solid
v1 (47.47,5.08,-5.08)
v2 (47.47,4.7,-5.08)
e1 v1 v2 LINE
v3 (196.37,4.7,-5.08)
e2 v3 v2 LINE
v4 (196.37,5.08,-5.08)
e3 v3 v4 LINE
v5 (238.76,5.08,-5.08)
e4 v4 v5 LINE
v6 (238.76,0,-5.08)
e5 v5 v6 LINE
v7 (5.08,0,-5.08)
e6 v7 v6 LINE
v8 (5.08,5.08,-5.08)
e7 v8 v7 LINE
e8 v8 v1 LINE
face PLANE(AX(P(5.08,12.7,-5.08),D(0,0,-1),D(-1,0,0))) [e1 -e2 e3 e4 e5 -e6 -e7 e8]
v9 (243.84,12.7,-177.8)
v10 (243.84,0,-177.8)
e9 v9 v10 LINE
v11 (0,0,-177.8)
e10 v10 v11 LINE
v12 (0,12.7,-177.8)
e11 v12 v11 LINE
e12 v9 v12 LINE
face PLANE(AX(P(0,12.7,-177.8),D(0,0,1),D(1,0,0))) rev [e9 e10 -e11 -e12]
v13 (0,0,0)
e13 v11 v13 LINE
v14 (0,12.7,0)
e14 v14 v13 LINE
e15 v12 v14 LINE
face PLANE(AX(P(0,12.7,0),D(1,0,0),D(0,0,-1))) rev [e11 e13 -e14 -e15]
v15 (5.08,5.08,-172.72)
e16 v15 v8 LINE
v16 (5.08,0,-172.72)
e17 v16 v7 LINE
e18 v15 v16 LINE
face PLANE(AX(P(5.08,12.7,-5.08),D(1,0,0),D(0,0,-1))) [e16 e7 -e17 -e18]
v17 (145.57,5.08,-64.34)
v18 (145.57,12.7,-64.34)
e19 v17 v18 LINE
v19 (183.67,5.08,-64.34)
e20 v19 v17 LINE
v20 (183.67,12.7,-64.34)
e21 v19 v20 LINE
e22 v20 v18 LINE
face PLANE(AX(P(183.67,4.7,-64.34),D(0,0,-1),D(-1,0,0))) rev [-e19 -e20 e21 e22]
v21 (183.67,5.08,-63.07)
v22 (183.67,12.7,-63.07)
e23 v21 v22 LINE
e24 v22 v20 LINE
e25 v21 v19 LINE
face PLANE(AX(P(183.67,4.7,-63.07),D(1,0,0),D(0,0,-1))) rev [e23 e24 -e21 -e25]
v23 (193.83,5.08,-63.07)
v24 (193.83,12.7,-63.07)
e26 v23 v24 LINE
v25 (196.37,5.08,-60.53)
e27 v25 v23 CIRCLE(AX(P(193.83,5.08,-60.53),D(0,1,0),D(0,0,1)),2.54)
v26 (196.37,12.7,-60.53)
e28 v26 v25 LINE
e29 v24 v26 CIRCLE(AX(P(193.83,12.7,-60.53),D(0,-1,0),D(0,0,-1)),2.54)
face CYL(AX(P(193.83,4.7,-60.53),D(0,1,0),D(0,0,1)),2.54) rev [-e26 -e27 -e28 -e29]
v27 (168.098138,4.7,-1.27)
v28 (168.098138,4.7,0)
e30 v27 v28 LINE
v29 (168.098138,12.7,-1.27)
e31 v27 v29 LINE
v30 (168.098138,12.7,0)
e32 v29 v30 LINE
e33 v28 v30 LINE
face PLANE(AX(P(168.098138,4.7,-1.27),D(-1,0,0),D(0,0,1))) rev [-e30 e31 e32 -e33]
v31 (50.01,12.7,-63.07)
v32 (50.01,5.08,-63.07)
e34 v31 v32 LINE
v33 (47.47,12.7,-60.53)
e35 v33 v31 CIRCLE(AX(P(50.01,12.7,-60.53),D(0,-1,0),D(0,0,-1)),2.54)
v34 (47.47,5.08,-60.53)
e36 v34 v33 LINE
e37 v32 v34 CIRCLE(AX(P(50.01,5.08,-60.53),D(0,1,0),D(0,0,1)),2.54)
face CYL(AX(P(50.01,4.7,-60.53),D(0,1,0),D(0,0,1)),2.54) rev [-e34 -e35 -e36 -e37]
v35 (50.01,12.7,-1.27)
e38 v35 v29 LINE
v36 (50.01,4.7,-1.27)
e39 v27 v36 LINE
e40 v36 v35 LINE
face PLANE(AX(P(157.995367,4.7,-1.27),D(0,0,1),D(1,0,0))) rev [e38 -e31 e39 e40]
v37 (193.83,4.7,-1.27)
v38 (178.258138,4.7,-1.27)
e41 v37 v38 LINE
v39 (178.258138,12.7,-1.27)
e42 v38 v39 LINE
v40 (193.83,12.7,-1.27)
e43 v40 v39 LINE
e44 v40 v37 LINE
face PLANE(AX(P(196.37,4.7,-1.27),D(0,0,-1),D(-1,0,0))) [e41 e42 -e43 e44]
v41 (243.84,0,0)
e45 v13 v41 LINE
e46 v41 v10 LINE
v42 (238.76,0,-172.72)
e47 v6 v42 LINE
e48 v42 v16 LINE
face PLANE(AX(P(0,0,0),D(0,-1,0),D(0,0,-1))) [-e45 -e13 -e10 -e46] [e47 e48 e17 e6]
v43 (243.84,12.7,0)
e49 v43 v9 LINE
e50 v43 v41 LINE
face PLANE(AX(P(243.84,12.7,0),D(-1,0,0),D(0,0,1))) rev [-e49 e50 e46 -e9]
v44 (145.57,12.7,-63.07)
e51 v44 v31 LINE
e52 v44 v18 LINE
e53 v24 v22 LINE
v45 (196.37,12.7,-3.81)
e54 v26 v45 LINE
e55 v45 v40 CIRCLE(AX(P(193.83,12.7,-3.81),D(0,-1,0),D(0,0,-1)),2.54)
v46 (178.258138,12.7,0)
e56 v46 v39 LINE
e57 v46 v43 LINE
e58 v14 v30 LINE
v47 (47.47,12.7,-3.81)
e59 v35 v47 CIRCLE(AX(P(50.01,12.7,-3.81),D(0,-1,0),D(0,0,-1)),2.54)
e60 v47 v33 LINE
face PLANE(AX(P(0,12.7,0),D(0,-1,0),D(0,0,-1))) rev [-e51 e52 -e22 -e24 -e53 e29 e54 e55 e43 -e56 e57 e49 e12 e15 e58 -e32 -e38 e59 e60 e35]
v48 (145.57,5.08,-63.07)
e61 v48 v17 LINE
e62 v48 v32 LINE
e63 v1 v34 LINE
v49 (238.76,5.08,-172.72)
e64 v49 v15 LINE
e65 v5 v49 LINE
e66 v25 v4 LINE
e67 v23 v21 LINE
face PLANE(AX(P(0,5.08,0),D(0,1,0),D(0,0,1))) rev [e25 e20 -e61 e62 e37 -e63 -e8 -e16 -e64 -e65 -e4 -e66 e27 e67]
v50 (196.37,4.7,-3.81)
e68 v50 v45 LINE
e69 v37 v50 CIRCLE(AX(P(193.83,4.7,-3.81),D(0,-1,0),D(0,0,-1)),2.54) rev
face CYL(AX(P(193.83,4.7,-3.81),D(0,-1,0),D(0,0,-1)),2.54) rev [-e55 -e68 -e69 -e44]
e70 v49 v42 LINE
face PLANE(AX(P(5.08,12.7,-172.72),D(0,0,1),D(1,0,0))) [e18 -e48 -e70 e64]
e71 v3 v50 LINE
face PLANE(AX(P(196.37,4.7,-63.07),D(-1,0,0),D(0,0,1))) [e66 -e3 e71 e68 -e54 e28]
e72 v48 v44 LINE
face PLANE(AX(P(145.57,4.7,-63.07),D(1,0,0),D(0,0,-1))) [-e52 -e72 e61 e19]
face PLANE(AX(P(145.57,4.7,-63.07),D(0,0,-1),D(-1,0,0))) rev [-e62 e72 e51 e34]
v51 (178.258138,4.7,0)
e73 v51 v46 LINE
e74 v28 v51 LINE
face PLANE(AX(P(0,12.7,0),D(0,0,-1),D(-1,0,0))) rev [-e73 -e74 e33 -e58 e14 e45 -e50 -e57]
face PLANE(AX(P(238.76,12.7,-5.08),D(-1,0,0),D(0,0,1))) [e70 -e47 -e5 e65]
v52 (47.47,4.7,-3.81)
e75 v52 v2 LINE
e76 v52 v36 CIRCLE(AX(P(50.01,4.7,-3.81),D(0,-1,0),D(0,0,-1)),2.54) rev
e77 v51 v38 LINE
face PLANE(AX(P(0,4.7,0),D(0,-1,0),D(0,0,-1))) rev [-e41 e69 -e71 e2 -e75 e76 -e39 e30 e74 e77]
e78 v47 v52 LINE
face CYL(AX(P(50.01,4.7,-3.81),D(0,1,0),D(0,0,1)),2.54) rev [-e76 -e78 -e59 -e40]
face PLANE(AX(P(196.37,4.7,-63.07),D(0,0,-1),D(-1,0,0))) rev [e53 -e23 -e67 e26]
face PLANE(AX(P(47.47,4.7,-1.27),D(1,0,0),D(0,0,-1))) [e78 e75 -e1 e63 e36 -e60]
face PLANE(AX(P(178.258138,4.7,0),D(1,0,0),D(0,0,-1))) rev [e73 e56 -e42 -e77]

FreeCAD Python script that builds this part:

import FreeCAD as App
import Part
import Sketcher
from FreeCAD import Vector
Q = App.Units.Quantity


def edges_at(feature, points):
    """Names of the edges that pass closest to the given points."""
    edges = feature.Shape.Edges
    near = lambda p: min(range(len(edges)), key=lambda i: edges[i].distToShape(Part.Vertex(*p))[0])
    return sorted({f"Edge{near(p) + 1}" for p in points})

doc = App.newDocument("Part")
body = doc.addObject("PartDesign::Body", "Body")

# Sketch on XZ plane
sketch1 = doc.addObject("Sketcher::SketchObject", "Sketch")
body.addObject(sketch1)
sketch1.AttachmentSupport = (doc.XZ_Plane, [""])
sketch1.MapMode = "FlatFace"
sketch1.addGeometry(Part.LineSegment(Vector(0, -178, 0), Vector(0, 0, 0)), False)
sketch1.addGeometry(Part.LineSegment(Vector(0, 0, 0), Vector(244, 0, 0)), False)
sketch1.addGeometry(Part.LineSegment(Vector(244, 0, 0), Vector(244, -178, 0)), False)
sketch1.addGeometry(Part.LineSegment(Vector(244, -178, 0), Vector(0, -178, 0)), False)
sketch1.addGeometry(Part.LineSegment(Vector(239, -5, 0), Vector(5, -5, 0)), False)
sketch1.addGeometry(Part.LineSegment(Vector(5, -5, 0), Vector(5, -173, 0)), False)
sketch1.addGeometry(Part.LineSegment(Vector(5, -173, 0), Vector(239, -173, 0)), False)
sketch1.addGeometry(Part.LineSegment(Vector(239, -173, 0), Vector(239, -5, 0)), False)
sketch1.addConstraint(Sketcher.Constraint("Coincident", 0, 2, 1, 1))
sketch1.addConstraint(Sketcher.Constraint("Coincident", 1, 2, 2, 1))
sketch1.addConstraint(Sketcher.Constraint("Coincident", 2, 2, 3, 1))
sketch1.addConstraint(Sketcher.Constraint("Coincident", 3, 2, 0, 1))
sketch1.addConstraint(Sketcher.Constraint("Coincident", 4, 2, 5, 1))
sketch1.addConstraint(Sketcher.Constraint("Coincident", 5, 2, 6, 1))
sketch1.addConstraint(Sketcher.Constraint("Coincident", 6, 2, 7, 1))
sketch1.addConstraint(Sketcher.Constraint("Coincident", 7, 2, 4, 1))
sketch1.addConstraint(Sketcher.Constraint("Vertical", 0))
sketch1.addConstraint(Sketcher.Constraint("Horizontal", 1))
sketch1.addConstraint(Sketcher.Constraint("Vertical", 2))
sketch1.addConstraint(Sketcher.Constraint("Horizontal", 3))
sketch1.addConstraint(Sketcher.Constraint("Horizontal", 4))
sketch1.addConstraint(Sketcher.Constraint("Vertical", 5))
sketch1.addConstraint(Sketcher.Constraint("Horizontal", 6))
sketch1.addConstraint(Sketcher.Constraint("Vertical", 7))
sketch1.addConstraint(Sketcher.Constraint("Coincident", 0, 2, -1, 1))
sketch1.addConstraint(Sketcher.Constraint("DistanceY", 0, 1, 0, 2, Q("7 in")))
sketch1.addConstraint(Sketcher.Constraint("DistanceX", 1, 1, 1, 2, Q("9.6 in")))
sketch1.addConstraint(Sketcher.Constraint("DistanceX", 4, 2, 4, 1, Q("9.2 in")))
sketch1.addConstraint(Sketcher.Constraint("DistanceY", 5, 2, 5, 1, Q("6.6 in")))
sketch1.addConstraint(Sketcher.Constraint("DistanceX", -1, 1, 4, 2, Q("0.2 in")))
sketch1.addConstraint(Sketcher.Constraint("DistanceY", 4, 2, -1, 1, Q("0.2 in")))
pad1 = doc.addObject("PartDesign::Pad", "Pad")
body.addObject(pad1)
pad1.Profile = sketch1
pad1.Length = Q("0.5 in")
pad1.Reversed = True

# Sketch on XZ plane
sketch2 = doc.addObject("Sketcher::SketchObject", "Sketch001")
body.addObject(sketch2)
sketch2.AttachmentSupport = (doc.XZ_Plane, [""])
sketch2.MapMode = "FlatFace"
sketch2.AttachmentOffset = App.Placement(Vector(0, 0, -0.5 * 25.4), App.Rotation())
sketch2.addGeometry(Part.LineSegment(Vector(5, -173, 0), Vector(5, -5, 0)), False)
sketch2.addGeometry(Part.LineSegment(Vector(5, -5, 0), Vector(239, -5, 0)), False)
sketch2.addGeometry(Part.LineSegment(Vector(239, -5, 0), Vector(239, -173, 0)), False)
sketch2.addGeometry(Part.LineSegment(Vector(239, -173, 0), Vector(5, -173, 0)), False)
sketch2.addConstraint(Sketcher.Constraint("Coincident", 0, 2, 1, 1))
sketch2.addConstraint(Sketcher.Constraint("Coincident", 1, 2, 2, 1))
sketch2.addConstraint(Sketcher.Constraint("Coincident", 2, 2, 3, 1))
sketch2.addConstraint(Sketcher.Constraint("Coincident", 3, 2, 0, 1))
sketch2.addConstraint(Sketcher.Constraint("Vertical", 0))
sketch2.addConstraint(Sketcher.Constraint("Horizontal", 1))
sketch2.addConstraint(Sketcher.Constraint("Vertical", 2))
sketch2.addConstraint(Sketcher.Constraint("Horizontal", 3))
sketch2.addConstraint(Sketcher.Constraint("DistanceX", 1, 1, 1, 2, Q("9.2 in")))
sketch2.addConstraint(Sketcher.Constraint("DistanceY", 0, 1, 0, 2, Q("6.6 in")))
sketch2.addConstraint(Sketcher.Constraint("DistanceX", -1, 1, 0, 2, Q("0.2 in")))
sketch2.addConstraint(Sketcher.Constraint("DistanceY", 0, 2, -1, 1, Q("0.2 in")))
pad2 = doc.addObject("PartDesign::Pad", "Pad001")
body.addObject(pad2)
pad2.Profile = sketch2
pad2.Length = Q("0.3 in")

# Sketch on XZ plane
sketch3 = doc.addObject("Sketcher::SketchObject", "Sketch002")
body.addObject(sketch3)
sketch3.AttachmentSupport = (doc.XZ_Plane, [""])
sketch3.MapMode = "FlatFace"
sketch3.AttachmentOffset = App.Placement(Vector(0, 0, -0.5 * 25.4), App.Rotation())
sketch3.addGeometry(Part.LineSegment(Vector(178.3, -1.3, 0), Vector(196.4, -1.3, 0)), False)
sketch3.addGeometry(Part.LineSegment(Vector(196.4, -1.3, 0), Vector(196.4, -63.1, 0)), False)
sketch3.addGeometry(Part.LineSegment(Vector(196.4, -63.1, 0), Vector(183.7, -63.1, 0)), False)
sketch3.addGeometry(Part.LineSegment(Vector(183.7, -63.1, 0), Vector(183.7, -64.3, 0)), False)
sketch3.addGeometry(Part.LineSegment(Vector(183.7, -64.3, 0), Vector(145.6, -64.3, 0)), False)
sketch3.addGeometry(Part.LineSegment(Vector(145.6, -64.3, 0), Vector(145.6, -63.1, 0)), False)
sketch3.addGeometry(Part.LineSegment(Vector(145.6, -63.1, 0), Vector(47.5, -63.1, 0)), False)
sketch3.addGeometry(Part.LineSegment(Vector(47.5, -63.1, 0), Vector(47.5, -1.3, 0)), False)
sketch3.addGeometry(Part.LineSegment(Vector(47.5, -1.3, 0), Vector(168.1, -1.3, 0)), False)
sketch3.addGeometry(Part.LineSegment(Vector(168.1, -1.3, 0), Vector(168.1, 0, 0)), False)
sketch3.addGeometry(Part.LineSegment(Vector(168.1, 0, 0), Vector(178.3, 0, 0)), False)
sketch3.addGeometry(Part.LineSegment(Vector(178.3, 0, 0), Vector(178.3, -1.3, 0)), False)
sketch3.addConstraint(Sketcher.Constraint("Coincident", 0, 2, 1, 1))
sketch3.addConstraint(Sketcher.Constraint("Coincident", 1, 2, 2, 1))
sketch3.addConstraint(Sketcher.Constraint("Coincident", 2, 2, 3, 1))
sketch3.addConstraint(Sketcher.Constraint("Coincident", 3, 2, 4, 1))
sketch3.addConstraint(Sketcher.Constraint("Coincident", 4, 2, 5, 1))
sketch3.addConstraint(Sketcher.Constraint("Coincident", 5, 2, 6, 1))
sketch3.addConstraint(Sketcher.Constraint("Coincident", 6, 2, 7, 1))
sketch3.addConstraint(Sketcher.Constraint("Coincident", 7, 2, 8, 1))
sketch3.addConstraint(Sketcher.Constraint("Coincident", 8, 2, 9, 1))
sketch3.addConstraint(Sketcher.Constraint("Coincident", 9, 2, 10, 1))
sketch3.addConstraint(Sketcher.Constraint("Coincident", 10, 2, 11, 1))
sketch3.addConstraint(Sketcher.Constraint("Coincident", 11, 2, 0, 1))
sketch3.addConstraint(Sketcher.Constraint("Horizontal", 0))
sketch3.addConstraint(Sketcher.Constraint("Vertical", 1))
sketch3.addConstraint(Sketcher.Constraint("Horizontal", 2))
sketch3.addConstraint(Sketcher.Constraint("Vertical", 3))
sketch3.addConstraint(Sketcher.Constraint("Horizontal", 4))
sketch3.addConstraint(Sketcher.Constraint("Vertical", 5))
sketch3.addConstraint(Sketcher.Constraint("Horizontal", 6))
sketch3.addConstraint(Sketcher.Constraint("Vertical", 7))
sketch3.addConstraint(Sketcher.Constraint("Horizontal", 8))
sketch3.addConstraint(Sketcher.Constraint("Vertical", 9))
sketch3.addConstraint(Sketcher.Constraint("Horizontal", 10))
sketch3.addConstraint(Sketcher.Constraint("Vertical", 11))
sketch3.addConstraint(Sketcher.Constraint("PointOnObject", 9, 2, -1))
sketch3.addConstraint(Sketcher.Constraint("Horizontal", 2, 2, 5, 2))
sketch3.addConstraint(Sketcher.Constraint("Horizontal", 0, 2, 7, 2))
sketch3.addConstraint(Sketcher.Constraint("Equal", 5, 9))
sketch3.addConstraint(Sketcher.Constraint("DistanceX", 2, 2, 2, 1, Q("0.5 in")))
sketch3.addConstraint(Sketcher.Constraint("DistanceX", 4, 2, 4, 1, Q("1.5 in")))
sketch3.addConstraint(Sketcher.Constraint("DistanceX", 10, 1, 10, 2, Q("0.4 in")))
sketch3.addConstraint(Sketcher.Constraint("DistanceY", 3, 2, 3, 1, Q("0.05 in")))
sketch3.addConstraint(Sketcher.Constraint("DistanceX", 6, 2, 6, 1, 98.1))
sketch3.addConstraint(Sketcher.Constraint("DistanceY", 1, 2, 1, 1, 61.8))
sketch3.addConstraint(Sketcher.Constraint("DistanceX", -1, 1, 0, 2, 196.37))
sketch3.addConstraint(Sketcher.Constraint("DistanceX", 0, 1, 0, 2, 18.111862))
pocket1 = doc.addObject("PartDesign::Pocket", "Pocket")
body.addObject(pocket1)
pocket1.Profile = sketch3
pocket1.Length = 8
pocket1.Reversed = True
doc.recompute()

fillet = doc.addObject("PartDesign::Fillet", "Fillet")
body.addObject(fillet)
fillet.Base = (pocket1, edges_at(pocket1, [
    (47.47, 8.89, -63.07),
    (47.47, 8.7, -1.27),
    (196.37, 8.89, -63.07),
    (196.37, 8.7, -1.27),
]))
fillet.Radius = Q("0.1 in")

doc.recompute()
